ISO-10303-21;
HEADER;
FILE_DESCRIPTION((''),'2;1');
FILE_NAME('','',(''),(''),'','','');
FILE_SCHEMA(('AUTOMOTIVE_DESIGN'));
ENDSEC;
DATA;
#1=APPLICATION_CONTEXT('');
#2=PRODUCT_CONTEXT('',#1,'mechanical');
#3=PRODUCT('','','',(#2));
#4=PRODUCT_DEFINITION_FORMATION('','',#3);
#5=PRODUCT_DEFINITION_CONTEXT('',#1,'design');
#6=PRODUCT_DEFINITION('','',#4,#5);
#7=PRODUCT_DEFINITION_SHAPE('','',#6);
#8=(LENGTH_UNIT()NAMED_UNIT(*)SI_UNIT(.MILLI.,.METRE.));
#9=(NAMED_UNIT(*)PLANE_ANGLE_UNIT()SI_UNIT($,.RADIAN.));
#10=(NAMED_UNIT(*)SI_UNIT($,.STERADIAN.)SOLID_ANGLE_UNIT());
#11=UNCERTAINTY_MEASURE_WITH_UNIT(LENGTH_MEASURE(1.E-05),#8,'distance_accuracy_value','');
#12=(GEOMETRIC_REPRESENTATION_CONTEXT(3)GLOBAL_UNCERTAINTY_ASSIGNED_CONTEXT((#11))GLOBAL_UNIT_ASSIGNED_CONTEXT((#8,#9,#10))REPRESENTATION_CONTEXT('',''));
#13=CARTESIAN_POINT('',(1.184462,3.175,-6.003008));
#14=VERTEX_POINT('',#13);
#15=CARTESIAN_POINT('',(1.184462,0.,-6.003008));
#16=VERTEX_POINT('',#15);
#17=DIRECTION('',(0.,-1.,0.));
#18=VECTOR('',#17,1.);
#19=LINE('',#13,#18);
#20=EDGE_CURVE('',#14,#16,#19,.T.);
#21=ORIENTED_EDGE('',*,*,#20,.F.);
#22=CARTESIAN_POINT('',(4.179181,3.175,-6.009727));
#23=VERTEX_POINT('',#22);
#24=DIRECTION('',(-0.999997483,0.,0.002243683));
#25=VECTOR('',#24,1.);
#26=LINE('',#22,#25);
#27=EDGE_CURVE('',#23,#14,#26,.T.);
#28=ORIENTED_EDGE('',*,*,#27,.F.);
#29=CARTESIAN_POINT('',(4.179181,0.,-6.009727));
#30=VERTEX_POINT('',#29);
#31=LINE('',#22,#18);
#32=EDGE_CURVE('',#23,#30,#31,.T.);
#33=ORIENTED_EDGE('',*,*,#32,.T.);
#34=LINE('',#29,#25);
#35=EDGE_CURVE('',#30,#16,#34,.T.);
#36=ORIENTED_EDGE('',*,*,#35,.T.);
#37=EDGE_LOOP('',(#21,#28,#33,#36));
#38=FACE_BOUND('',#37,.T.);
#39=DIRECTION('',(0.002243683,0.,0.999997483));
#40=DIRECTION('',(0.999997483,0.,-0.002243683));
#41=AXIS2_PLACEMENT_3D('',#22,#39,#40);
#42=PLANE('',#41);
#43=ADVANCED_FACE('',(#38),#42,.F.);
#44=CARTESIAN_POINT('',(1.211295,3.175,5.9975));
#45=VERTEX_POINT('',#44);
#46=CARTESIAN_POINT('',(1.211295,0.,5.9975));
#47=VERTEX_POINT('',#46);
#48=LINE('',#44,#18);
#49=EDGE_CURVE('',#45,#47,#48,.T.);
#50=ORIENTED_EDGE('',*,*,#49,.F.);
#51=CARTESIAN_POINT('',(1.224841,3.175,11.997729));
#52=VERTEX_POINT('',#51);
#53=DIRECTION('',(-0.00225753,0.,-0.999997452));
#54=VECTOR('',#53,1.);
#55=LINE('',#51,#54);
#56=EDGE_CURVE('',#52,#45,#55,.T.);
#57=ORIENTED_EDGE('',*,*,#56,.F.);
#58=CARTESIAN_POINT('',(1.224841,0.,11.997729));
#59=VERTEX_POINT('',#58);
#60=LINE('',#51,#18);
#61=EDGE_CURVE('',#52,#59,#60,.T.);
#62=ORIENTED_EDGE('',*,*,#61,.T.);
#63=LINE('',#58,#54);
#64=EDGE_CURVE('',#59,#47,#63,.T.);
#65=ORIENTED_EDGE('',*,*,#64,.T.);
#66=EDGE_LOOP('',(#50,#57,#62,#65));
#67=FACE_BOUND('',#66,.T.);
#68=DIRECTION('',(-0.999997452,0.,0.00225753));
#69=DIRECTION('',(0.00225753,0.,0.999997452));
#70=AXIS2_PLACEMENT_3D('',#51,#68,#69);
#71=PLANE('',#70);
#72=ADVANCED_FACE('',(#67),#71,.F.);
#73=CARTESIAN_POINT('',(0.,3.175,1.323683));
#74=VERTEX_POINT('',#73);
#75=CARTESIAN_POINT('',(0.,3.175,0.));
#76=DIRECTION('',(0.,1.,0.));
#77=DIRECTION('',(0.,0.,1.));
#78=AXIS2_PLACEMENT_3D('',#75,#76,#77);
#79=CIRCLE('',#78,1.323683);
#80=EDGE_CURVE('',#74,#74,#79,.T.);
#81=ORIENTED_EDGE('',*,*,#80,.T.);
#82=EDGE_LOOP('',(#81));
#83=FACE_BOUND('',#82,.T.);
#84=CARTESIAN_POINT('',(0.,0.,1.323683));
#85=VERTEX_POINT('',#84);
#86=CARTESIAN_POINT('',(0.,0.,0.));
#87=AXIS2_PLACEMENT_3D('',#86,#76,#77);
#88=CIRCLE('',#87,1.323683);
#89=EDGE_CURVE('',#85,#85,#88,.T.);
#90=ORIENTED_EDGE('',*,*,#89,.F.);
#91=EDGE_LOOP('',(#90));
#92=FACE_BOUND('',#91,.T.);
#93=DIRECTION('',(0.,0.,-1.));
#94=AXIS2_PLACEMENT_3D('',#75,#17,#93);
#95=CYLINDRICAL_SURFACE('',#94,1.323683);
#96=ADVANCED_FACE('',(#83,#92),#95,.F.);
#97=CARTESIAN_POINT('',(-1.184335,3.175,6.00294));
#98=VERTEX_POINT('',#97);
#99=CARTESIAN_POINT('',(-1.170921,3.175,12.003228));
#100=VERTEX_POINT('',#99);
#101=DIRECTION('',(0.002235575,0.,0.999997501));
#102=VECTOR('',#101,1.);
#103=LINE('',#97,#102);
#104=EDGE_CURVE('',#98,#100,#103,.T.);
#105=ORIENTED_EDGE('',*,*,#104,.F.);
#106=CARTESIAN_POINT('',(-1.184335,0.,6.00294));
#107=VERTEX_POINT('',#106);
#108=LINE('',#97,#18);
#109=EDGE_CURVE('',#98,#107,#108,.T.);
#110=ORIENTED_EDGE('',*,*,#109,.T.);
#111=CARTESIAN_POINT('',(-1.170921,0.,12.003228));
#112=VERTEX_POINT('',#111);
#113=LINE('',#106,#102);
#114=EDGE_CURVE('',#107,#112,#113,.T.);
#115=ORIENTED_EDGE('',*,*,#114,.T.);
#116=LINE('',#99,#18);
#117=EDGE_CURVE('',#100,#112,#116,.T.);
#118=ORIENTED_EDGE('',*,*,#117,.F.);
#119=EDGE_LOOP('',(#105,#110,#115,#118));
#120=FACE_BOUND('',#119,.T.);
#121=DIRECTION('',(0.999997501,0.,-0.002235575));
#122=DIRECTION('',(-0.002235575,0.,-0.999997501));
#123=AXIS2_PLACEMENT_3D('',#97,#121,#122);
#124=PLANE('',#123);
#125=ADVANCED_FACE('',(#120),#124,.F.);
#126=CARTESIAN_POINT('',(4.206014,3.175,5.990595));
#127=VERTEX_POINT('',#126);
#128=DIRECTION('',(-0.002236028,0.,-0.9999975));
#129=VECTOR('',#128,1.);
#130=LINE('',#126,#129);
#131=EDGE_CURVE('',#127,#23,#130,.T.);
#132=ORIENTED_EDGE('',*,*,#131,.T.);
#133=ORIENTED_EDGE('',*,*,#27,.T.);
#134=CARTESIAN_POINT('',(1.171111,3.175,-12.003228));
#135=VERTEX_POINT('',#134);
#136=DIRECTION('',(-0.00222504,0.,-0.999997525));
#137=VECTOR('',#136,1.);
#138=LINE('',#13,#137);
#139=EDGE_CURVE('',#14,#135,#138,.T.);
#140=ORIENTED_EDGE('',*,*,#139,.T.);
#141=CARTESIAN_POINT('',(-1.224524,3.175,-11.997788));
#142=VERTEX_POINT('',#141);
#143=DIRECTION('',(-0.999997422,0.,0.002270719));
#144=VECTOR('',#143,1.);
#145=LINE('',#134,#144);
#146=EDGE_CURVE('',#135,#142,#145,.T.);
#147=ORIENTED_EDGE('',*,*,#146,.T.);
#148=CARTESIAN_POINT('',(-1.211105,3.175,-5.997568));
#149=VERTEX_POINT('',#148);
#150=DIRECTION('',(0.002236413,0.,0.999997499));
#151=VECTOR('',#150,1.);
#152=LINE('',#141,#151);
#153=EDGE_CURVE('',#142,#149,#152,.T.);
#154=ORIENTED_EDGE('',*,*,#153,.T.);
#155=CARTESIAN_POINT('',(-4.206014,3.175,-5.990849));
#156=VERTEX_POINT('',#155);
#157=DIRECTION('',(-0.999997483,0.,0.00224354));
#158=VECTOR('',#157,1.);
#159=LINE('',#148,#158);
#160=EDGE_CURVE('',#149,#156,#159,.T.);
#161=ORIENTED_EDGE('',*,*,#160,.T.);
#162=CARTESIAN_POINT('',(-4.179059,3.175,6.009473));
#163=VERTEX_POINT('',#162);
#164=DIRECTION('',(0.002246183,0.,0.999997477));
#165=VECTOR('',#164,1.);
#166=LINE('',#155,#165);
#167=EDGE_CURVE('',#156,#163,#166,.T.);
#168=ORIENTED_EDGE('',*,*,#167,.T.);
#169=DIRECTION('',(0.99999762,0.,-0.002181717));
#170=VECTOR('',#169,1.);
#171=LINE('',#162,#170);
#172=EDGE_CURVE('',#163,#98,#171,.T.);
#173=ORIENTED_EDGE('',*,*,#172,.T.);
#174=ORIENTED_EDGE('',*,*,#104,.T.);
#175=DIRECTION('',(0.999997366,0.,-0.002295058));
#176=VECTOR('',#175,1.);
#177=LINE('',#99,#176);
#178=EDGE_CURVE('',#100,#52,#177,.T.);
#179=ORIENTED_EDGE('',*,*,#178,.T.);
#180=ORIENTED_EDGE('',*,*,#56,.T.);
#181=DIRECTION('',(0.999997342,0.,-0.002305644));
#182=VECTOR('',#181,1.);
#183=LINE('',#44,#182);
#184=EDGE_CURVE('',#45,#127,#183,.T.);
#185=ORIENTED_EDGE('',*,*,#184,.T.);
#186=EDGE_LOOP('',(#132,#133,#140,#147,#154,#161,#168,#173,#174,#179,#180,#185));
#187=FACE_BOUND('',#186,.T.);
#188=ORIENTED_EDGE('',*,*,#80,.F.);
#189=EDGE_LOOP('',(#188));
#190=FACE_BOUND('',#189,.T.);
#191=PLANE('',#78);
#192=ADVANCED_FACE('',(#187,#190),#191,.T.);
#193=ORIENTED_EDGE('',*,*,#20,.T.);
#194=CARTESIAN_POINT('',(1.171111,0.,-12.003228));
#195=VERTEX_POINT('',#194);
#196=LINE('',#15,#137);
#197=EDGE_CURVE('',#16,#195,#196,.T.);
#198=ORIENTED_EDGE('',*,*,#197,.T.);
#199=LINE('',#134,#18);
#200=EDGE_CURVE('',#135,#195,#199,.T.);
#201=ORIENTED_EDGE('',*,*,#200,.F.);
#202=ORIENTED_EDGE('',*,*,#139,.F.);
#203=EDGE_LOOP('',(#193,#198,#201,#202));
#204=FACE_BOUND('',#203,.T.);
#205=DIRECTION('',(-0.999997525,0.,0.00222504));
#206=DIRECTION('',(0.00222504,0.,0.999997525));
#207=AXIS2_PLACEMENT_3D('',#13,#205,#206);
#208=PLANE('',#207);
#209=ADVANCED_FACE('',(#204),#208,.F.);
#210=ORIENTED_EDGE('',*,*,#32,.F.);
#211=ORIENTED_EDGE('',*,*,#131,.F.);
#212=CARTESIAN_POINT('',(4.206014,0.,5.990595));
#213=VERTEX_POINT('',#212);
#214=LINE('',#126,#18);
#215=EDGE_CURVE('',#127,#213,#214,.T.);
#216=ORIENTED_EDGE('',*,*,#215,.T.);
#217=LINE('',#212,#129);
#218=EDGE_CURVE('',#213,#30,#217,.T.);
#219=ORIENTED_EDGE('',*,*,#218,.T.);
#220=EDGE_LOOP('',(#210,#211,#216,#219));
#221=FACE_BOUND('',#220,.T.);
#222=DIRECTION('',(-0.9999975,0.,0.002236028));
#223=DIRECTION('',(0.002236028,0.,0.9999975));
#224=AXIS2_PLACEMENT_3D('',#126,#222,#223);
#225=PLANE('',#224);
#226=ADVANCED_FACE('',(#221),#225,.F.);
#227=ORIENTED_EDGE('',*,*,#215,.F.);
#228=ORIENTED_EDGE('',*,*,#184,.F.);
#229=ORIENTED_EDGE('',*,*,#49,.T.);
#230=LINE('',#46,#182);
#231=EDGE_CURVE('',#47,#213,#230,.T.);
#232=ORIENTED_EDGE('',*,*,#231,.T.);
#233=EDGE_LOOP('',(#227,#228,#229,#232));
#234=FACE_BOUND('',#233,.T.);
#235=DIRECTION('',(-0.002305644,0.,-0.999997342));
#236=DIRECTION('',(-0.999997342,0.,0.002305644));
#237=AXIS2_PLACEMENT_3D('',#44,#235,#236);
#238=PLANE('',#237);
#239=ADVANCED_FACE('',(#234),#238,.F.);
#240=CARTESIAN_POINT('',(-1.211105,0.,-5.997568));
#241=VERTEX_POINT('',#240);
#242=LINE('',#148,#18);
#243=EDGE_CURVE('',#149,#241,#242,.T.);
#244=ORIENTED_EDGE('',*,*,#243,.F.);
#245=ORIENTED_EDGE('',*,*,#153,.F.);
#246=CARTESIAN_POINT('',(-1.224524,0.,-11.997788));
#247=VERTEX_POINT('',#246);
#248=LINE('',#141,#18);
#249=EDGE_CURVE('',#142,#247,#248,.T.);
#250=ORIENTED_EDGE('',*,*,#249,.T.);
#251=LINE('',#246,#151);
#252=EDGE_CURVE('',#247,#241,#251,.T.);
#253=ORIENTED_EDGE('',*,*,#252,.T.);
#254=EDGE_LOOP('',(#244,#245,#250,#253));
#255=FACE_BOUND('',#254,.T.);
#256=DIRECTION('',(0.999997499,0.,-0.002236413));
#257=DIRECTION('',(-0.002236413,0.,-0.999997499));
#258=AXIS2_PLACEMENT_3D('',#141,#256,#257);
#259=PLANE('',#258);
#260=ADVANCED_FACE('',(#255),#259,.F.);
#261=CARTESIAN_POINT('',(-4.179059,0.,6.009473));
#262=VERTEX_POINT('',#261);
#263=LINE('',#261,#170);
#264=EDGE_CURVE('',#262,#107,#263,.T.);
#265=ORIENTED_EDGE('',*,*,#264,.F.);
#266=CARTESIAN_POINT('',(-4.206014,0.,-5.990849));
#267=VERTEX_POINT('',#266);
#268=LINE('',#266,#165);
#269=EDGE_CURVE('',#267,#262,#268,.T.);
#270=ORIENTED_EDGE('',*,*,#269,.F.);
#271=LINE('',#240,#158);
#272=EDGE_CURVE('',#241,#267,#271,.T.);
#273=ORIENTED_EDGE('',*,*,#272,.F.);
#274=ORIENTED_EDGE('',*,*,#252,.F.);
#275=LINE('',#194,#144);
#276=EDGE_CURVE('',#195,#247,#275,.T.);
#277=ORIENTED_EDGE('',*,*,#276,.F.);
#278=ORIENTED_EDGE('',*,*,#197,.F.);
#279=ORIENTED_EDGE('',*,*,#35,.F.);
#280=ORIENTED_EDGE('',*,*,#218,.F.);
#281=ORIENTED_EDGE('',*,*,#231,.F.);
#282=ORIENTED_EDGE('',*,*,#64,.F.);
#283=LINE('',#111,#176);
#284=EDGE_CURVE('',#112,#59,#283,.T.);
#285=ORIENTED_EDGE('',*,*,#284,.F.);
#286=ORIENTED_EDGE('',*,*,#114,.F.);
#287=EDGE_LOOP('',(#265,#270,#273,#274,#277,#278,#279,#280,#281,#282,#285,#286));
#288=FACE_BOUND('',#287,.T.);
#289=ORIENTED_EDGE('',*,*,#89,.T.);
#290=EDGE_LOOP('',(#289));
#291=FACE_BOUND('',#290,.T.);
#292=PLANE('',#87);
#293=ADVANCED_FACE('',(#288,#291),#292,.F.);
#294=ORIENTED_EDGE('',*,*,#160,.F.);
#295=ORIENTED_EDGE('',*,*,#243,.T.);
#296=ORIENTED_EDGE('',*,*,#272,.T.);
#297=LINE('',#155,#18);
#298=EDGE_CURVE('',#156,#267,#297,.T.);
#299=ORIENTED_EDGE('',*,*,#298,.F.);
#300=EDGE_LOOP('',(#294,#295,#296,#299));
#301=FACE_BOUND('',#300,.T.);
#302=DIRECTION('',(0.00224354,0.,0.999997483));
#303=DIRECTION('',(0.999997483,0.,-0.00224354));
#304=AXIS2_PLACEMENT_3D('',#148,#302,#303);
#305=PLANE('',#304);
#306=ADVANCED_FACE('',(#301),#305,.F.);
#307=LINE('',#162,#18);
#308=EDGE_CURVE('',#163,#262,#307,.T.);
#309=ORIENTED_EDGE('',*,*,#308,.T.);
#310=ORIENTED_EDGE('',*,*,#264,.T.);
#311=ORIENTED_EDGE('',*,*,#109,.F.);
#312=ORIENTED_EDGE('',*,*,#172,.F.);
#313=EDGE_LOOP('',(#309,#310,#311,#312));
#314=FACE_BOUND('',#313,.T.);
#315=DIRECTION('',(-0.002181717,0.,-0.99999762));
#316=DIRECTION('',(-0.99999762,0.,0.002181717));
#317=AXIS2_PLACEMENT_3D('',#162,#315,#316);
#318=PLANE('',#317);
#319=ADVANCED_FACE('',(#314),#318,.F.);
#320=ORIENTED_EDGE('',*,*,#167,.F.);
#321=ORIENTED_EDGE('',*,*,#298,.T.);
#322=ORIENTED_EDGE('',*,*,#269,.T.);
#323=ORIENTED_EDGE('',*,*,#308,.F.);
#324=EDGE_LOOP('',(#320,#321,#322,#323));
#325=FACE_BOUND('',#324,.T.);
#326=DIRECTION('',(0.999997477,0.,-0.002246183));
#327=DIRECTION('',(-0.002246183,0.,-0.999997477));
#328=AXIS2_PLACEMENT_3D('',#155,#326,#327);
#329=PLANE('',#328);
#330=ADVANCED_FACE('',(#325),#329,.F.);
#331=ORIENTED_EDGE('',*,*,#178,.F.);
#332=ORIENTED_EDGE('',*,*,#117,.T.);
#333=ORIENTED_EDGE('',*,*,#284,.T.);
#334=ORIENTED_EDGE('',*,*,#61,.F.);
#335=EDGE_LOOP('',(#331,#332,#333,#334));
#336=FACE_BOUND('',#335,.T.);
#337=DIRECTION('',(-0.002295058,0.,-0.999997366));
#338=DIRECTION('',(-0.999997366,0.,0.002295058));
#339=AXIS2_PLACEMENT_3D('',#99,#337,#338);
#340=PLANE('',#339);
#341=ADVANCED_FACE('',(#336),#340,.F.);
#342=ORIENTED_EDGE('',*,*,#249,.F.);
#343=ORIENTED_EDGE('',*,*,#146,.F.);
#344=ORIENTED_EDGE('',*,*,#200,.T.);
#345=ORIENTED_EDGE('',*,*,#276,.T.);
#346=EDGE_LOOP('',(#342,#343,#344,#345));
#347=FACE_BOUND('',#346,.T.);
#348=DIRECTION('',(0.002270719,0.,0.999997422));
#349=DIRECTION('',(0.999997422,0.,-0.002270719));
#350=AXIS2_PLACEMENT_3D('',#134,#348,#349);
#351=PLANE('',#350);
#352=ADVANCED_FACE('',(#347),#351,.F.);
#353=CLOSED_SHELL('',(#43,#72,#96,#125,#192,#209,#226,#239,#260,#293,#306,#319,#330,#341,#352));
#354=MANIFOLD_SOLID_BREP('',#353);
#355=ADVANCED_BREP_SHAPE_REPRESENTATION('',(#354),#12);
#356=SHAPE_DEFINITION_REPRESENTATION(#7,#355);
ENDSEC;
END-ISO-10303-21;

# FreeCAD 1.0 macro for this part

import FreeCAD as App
import Part
import Sketcher
from FreeCAD import Vector
Q = App.Units.Quantity

doc = App.newDocument("Part")
body = doc.addObject("PartDesign::Body", "Body")

sketch1 = doc.addObject("Sketcher::SketchObject", "Sketch")
body.addObject(sketch1)
sketch1.AttachmentSupport = (doc.XZ_Plane, [""])
sketch1.MapMode = "FlatFace"
sketch1.addGeometry([
    Part.LineSegment(Vector(-1.184335, 6.00294, 0), Vector(-1.170921, 12.003228, 0)),
    Part.LineSegment(Vector(-1.170921, 12.003228, 0), Vector(1.224841, 11.997729, 0)),
    Part.LineSegment(Vector(1.224841, 11.997729, 0), Vector(1.211295, 5.9975, 0)),
    Part.LineSegment(Vector(1.211295, 5.9975, 0), Vector(4.206014, 5.990595, 0)),
    Part.LineSegment(Vector(4.206014, 5.990595, 0), Vector(4.179181, -6.009727, 0)),
    Part.LineSegment(Vector(4.179181, -6.009727, 0), Vector(1.184462, -6.003008, 0)),
    Part.LineSegment(Vector(1.184462, -6.003008, 0), Vector(1.171111, -12.003228, 0)),
    Part.LineSegment(Vector(1.171111, -12.003228, 0), Vector(-1.224524, -11.997788, 0)),
    Part.LineSegment(Vector(-1.224524, -11.997788, 0), Vector(-1.211105, -5.997568, 0)),
    Part.LineSegment(Vector(-1.211105, -5.997568, 0), Vector(-4.206014, -5.990849, 0)),
    Part.LineSegment(Vector(-4.206014, -5.990849, 0), Vector(-4.179059, 6.009473, 0)),
    Part.LineSegment(Vector(-4.179059, 6.009473, 0), Vector(-1.184335, 6.00294, 0)),
    Part.Circle(Vector(0, 0, 0), Vector(0, 0, 1), 1.323683),
], False)
sketch1.addConstraint([
    Sketcher.Constraint("Coincident", 0, 2, 1, 1),
    Sketcher.Constraint("Coincident", 1, 2, 2, 1),
    Sketcher.Constraint("Coincident", 2, 2, 3, 1),
    Sketcher.Constraint("Coincident", 3, 2, 4, 1),
    Sketcher.Constraint("Coincident", 4, 2, 5, 1),
    Sketcher.Constraint("Coincident", 5, 2, 6, 1),
    Sketcher.Constraint("Coincident", 6, 2, 7, 1),
    Sketcher.Constraint("Coincident", 7, 2, 8, 1),
    Sketcher.Constraint("Coincident", 8, 2, 9, 1),
    Sketcher.Constraint("Coincident", 9, 2, 10, 1),
    Sketcher.Constraint("Coincident", 10, 2, 11, 1),
    Sketcher.Constraint("Coincident", 11, 2, 0, 1),
    Sketcher.Constraint("Coincident", 12, 3, -1, 1),
    Sketcher.Constraint("Diameter", 12, 2.647367),
    Sketcher.Constraint("DistanceY", -1, 1, 2, 2, 5.9975),
    Sketcher.Constraint("DistanceY", 1, 2, 0, 2, 0.005498),
    Sketcher.Constraint("DistanceX", 0, 2, 4, 2, 5.350102),
    Sketcher.Constraint("DistanceY", 6, 2, 4, 2, 5.9935),
    Sketcher.Constraint("DistanceX", 10, 2, 1, 2, 5.4039),
    Sketcher.Constraint("Distance", 1, 2.395768),
    Sketcher.Constraint("Distance", 7, 2.395642),
    Sketcher.Constraint("Distance", 11, 2.994731),
    Sketcher.Constraint("DistanceX", 0, 2, -1, 1, 1.170921),
    Sketcher.Constraint("DistanceY", -1, 1, 1, 2, 11.997729),
    Sketcher.Constraint("DistanceX", -1, 1, 6, 2, 1.171111),
    Sketcher.Constraint("DistanceY", 8, 2, -1, 1, 5.997568),
    Sketcher.Constraint("DistanceY", 9, 2, -1, 1, 5.990849),
    Sketcher.Constraint("DistanceY", -1, 1, 11, 2, 6.00294),
    Sketcher.Constraint("DistanceX", 2, 2, 3, 2, 2.994719),
    Sketcher.Constraint("DistanceX", 5, 2, 4, 2, 2.994719),
    Sketcher.Constraint("DistanceY", 4, 2, 5, 2, 0.006719),
    Sketcher.Constraint("DistanceX", 5, 2, 3, 2, 3.021552),
    Sketcher.Constraint("DistanceY", 6, 2, 7, 2, 0.00544),
    Sketcher.Constraint("DistanceY", 5, 2, 8, 2, 0.00544),
    Sketcher.Constraint("DistanceX", 7, 2, 8, 2, 0.013419),
    Sketcher.Constraint("DistanceX", 9, 2, 8, 2, 2.994909),
    Sketcher.Constraint("DistanceY", 3, 2, 10, 2, 0.018878),
    Sketcher.Constraint("Distance", 4, 12.000352),
])
pad1 = doc.addObject("PartDesign::Pad", "Pad")
body.addObject(pad1)
pad1.Profile = sketch1
pad1.Length = Q("0.125 in")
pad1.Reversed = True

doc.recompute()
